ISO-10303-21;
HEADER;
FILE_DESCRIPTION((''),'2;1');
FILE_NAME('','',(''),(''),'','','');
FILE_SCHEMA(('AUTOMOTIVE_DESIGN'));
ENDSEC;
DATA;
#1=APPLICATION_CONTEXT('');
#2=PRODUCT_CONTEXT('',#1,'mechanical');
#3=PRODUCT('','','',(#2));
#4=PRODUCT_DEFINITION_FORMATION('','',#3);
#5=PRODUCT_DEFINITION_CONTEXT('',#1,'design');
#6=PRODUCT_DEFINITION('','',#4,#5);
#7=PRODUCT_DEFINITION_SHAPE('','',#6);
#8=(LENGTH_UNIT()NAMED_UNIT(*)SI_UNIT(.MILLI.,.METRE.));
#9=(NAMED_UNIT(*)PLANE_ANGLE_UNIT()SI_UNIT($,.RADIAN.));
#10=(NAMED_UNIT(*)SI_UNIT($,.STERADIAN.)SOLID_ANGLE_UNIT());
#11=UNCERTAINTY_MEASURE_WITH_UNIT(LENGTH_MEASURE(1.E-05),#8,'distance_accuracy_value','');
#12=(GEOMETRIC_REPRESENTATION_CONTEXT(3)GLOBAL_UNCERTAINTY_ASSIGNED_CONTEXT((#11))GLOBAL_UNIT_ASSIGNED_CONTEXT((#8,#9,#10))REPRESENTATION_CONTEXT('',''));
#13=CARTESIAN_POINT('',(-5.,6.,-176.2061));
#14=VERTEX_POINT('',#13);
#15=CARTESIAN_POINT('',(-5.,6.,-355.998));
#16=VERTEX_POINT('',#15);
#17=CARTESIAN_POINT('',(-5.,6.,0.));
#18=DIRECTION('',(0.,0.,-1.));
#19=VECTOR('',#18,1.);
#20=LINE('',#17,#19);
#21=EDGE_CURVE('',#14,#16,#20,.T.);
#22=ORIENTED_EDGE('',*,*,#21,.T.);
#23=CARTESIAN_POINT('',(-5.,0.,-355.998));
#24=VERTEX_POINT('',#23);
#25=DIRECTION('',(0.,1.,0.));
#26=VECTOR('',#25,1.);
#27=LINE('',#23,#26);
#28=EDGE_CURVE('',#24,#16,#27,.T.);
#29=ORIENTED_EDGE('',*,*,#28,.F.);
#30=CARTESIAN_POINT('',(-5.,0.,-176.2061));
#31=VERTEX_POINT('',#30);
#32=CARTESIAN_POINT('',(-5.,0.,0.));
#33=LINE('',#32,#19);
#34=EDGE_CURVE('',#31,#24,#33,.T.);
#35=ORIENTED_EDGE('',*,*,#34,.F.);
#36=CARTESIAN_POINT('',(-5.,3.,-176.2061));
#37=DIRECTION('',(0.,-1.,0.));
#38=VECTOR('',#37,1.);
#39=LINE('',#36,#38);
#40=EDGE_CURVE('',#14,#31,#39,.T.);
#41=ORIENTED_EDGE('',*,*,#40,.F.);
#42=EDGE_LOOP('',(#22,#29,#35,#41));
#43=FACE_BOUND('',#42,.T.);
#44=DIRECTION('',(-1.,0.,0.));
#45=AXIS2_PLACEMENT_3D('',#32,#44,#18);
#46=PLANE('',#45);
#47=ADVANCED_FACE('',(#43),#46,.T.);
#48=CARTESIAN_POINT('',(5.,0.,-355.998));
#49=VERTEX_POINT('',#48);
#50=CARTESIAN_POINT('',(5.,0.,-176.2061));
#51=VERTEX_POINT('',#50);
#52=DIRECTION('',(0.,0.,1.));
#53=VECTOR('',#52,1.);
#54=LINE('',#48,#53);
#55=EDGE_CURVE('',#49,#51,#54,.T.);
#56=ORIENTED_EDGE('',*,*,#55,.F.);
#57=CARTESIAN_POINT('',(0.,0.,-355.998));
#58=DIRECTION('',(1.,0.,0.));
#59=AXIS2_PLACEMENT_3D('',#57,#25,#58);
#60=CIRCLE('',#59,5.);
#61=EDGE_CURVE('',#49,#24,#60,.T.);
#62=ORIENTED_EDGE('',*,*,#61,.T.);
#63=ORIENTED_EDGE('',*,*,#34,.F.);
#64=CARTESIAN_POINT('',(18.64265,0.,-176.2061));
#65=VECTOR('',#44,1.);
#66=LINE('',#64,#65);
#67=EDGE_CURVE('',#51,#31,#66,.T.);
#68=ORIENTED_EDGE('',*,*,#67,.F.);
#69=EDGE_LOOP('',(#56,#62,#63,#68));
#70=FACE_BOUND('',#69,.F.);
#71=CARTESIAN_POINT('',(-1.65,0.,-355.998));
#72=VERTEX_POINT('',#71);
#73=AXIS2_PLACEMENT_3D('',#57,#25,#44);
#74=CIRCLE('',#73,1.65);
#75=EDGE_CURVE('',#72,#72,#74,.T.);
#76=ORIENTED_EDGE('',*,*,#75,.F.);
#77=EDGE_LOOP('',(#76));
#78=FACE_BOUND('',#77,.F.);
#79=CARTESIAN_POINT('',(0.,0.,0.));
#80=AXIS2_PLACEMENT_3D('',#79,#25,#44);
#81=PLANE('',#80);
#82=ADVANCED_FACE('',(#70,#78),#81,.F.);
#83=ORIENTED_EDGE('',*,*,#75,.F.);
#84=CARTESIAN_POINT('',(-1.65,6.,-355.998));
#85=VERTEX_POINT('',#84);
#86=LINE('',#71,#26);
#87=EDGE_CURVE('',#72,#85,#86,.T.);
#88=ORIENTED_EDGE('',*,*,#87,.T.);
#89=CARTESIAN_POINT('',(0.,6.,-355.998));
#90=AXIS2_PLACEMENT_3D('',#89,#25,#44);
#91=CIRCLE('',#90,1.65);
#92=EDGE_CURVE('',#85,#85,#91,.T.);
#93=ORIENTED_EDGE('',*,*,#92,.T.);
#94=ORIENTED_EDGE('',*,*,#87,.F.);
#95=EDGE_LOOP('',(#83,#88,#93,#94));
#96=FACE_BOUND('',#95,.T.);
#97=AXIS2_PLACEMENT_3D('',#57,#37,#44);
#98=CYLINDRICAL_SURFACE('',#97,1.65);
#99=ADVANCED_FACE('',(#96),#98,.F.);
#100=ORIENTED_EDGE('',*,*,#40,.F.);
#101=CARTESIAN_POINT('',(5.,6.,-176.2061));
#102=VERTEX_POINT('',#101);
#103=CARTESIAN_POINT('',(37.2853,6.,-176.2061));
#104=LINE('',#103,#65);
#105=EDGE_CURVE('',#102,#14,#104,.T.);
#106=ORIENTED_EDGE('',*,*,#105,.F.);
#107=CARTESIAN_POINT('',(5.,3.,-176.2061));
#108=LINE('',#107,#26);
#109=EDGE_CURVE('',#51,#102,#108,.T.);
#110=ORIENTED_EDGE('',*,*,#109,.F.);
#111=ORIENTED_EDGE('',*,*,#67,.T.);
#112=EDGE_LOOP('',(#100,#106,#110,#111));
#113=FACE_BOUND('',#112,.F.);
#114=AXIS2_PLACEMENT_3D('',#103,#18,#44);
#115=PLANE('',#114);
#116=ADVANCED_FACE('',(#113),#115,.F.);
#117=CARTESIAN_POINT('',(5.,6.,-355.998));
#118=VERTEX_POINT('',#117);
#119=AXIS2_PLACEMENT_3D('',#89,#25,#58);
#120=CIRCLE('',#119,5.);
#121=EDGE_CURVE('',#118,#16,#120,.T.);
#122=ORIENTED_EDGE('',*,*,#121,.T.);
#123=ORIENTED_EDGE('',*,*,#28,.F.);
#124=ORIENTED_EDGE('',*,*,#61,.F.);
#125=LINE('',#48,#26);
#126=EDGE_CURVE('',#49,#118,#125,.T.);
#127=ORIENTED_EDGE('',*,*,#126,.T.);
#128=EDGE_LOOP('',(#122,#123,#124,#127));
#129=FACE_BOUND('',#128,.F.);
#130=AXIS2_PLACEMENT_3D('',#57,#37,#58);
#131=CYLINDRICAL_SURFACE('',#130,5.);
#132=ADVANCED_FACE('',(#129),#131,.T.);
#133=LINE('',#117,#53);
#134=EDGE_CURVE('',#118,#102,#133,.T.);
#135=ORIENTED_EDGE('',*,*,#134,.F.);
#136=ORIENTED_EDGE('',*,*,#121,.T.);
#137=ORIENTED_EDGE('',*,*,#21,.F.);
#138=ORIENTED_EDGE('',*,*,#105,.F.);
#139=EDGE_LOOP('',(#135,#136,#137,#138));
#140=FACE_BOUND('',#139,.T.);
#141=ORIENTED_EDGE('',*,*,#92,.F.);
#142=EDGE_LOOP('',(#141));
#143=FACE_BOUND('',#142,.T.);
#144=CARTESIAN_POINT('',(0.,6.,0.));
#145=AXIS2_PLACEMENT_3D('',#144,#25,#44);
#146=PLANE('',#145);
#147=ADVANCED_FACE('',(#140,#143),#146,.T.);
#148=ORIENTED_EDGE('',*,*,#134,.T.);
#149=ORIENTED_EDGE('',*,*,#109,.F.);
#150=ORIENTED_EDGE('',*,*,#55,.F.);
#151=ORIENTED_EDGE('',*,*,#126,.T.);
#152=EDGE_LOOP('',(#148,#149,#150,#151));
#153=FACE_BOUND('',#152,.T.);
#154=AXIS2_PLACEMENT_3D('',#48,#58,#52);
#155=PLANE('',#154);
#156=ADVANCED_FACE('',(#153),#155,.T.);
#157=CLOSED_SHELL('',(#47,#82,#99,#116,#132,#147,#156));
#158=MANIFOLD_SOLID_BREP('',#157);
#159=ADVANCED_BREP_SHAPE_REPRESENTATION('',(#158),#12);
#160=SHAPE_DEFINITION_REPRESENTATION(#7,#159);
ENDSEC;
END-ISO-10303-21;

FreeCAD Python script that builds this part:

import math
import FreeCAD as App
import Part
import Sketcher
from FreeCAD import Vector
Q = App.Units.Quantity

doc = App.newDocument("Part")
params = doc.addObject("Spreadsheet::Sheet", "Params")
for row, (alias, value) in enumerate([
    ("sketch1_radius", "5 mm"),
    ("sketch1_diameter", "3.3 mm"),
    ("pad1_length", "6 mm"),
    ("pocket1_length", "10 mm"),
], start=1):
    params.set(f"A{row}", alias)
    params.set(f"B{row}", "=" + value)
    params.setAlias(f"B{row}", alias)

body = doc.addObject("PartDesign::Body", "Body")

# Sketch on XZ plane
sketch1 = doc.addObject("Sketcher::SketchObject", "Sketch")
body.addObject(sketch1)
sketch1.AttachmentSupport = (doc.XZ_Plane, [""])
sketch1.MapMode = "FlatFace"
sketch1.addGeometry(Part.LineSegment(Vector(-5, -356, 0), Vector(-5, 0, 0)), False)
sketch1.addGeometry(Part.ArcOfCircle(Part.Circle(Vector(0, 0, 0), Vector(0, 0, 1), 5), math.radians(0), math.radians(180)), False)
sketch1.addGeometry(Part.LineSegment(Vector(5, 0, 0), Vector(5, -356, 0)), False)
sketch1.addGeometry(Part.ArcOfCircle(Part.Circle(Vector(0, -356, 0), Vector(0, 0, 1), 5), math.radians(180), math.radians(360)), False)
sketch1.addGeometry(Part.Circle(Vector(0, -356, 0), Vector(0, 0, 1), 1.6), False)
sketch1.addGeometry(Part.Circle(Vector(0, -57.4, 0), Vector(0, 0, 1), 1.6), False)
sketch1.addGeometry(Part.Circle(Vector(0, 0, 0), Vector(0, 0, 1), 1.6), False)
sketch1.addConstraint(Sketcher.Constraint("Tangent", 0, 2, 1, 2))
sketch1.addConstraint(Sketcher.Constraint("Tangent", 1, 1, 2, 1))
sketch1.addConstraint(Sketcher.Constraint("Tangent", 2, 2, 3, 2))
sketch1.addConstraint(Sketcher.Constraint("Tangent", 3, 1, 0, 1))
sketch1.addConstraint(Sketcher.Constraint("Vertical", 0))
sketch1.addConstraint(Sketcher.Constraint("Vertical", 2))
sketch1.addConstraint(Sketcher.Constraint("Coincident", 1, 3, -1, 1))
sketch1.addConstraint(Sketcher.Constraint("Coincident", 6, 3, -1, 1))
sketch1.addConstraint(Sketcher.Constraint("Coincident", 4, 3, 3, 3))
sketch1.addConstraint(Sketcher.Constraint("Equal", 4, 5))
sketch1.addConstraint(Sketcher.Constraint("Equal", 5, 6))
sketch1.addConstraint(Sketcher.Constraint("PointOnObject", 5, 3, -2))
sketch1.addConstraint(Sketcher.Constraint("Radius", 1, Q("5 mm")))
sketch1.addConstraint(Sketcher.Constraint("Diameter", 4, Q("3.3 mm")))
sketch1.addConstraint(Sketcher.Constraint("DistanceY", 0, 1, 0, 2, Q("355.998 mm")))
sketch1.addConstraint(Sketcher.Constraint("DistanceY", 5, 3, -1, 1, Q("57.376 mm")))
sketch1.setExpression("Constraints[12]", "Params.sketch1_radius")
sketch1.setExpression("Constraints[13]", "Params.sketch1_diameter")
pad1 = doc.addObject("PartDesign::Pad", "Pad")
body.addObject(pad1)
pad1.Profile = sketch1
pad1.setExpression("Length", "Params.pad1_length")
pad1.Reversed = True

# Sketch on XZ plane
sketch2 = doc.addObject("Sketcher::SketchObject", "Sketch001")
body.addObject(sketch2)
sketch2.AttachmentSupport = (doc.XZ_Plane, [""])
sketch2.MapMode = "FlatFace"
sketch2.AttachmentOffset = App.Placement(Vector(0, 0, -6), App.Rotation())
sketch2.addGeometry(Part.LineSegment(Vector(75, -405, 0), Vector(-95, -405, 0)), False)
sketch2.addGeometry(Part.LineSegment(Vector(-95, -405, 0), Vector(-95, 44, 0)), False)
sketch2.addGeometry(Part.LineSegment(Vector(-95, 44, 0), Vector(75, 44, 0)), False)
sketch2.addGeometry(Part.LineSegment(Vector(75, 44, 0), Vector(75, -405, 0)), False)
sketch2.addGeometry(Part.LineSegment(Vector(-26, -176, 0), Vector(-26, -379, 0)), False)
sketch2.addGeometry(Part.LineSegment(Vector(-26, -379, 0), Vector(37, -379, 0)), False)
sketch2.addGeometry(Part.LineSegment(Vector(37, -379, 0), Vector(37, -176, 0)), False)
sketch2.addGeometry(Part.LineSegment(Vector(37, -176, 0), Vector(-26, -176, 0)), False)
sketch2.addConstraint(Sketcher.Constraint("Coincident", 0, 2, 1, 1))
sketch2.addConstraint(Sketcher.Constraint("Coincident", 1, 2, 2, 1))
sketch2.addConstraint(Sketcher.Constraint("Coincident", 2, 2, 3, 1))
sketch2.addConstraint(Sketcher.Constraint("Coincident", 3, 2, 0, 1))
sketch2.addConstraint(Sketcher.Constraint("Coincident", 4, 2, 5, 1))
sketch2.addConstraint(Sketcher.Constraint("Coincident", 5, 2, 6, 1))
sketch2.addConstraint(Sketcher.Constraint("Coincident", 6, 2, 7, 1))
sketch2.addConstraint(Sketcher.Constraint("Coincident", 7, 2, 4, 1))
sketch2.addConstraint(Sketcher.Constraint("Horizontal", 0))
sketch2.addConstraint(Sketcher.Constraint("Vertical", 1))
sketch2.addConstraint(Sketcher.Constraint("Horizontal", 2))
sketch2.addConstraint(Sketcher.Constraint("Vertical", 3))
sketch2.addConstraint(Sketcher.Constraint("Vertical", 4))
sketch2.addConstraint(Sketcher.Constraint("Horizontal", 5))
sketch2.addConstraint(Sketcher.Constraint("Vertical", 6))
sketch2.addConstraint(Sketcher.Constraint("Horizontal", 7))
sketch2.addConstraint(Sketcher.Constraint("DistanceX", 0, 2, 0, 1, Q("170.1706 mm")))
sketch2.addConstraint(Sketcher.Constraint("DistanceX", 5, 1, 5, 2, Q("63.5038 mm")))
sketch2.addConstraint(Sketcher.Constraint("DistanceY", 1, 1, 1, 2, Q("449.4885 mm")))
sketch2.addConstraint(Sketcher.Constraint("DistanceY", 4, 2, 4, 1, Q("202.4187 mm")))
sketch2.addConstraint(Sketcher.Constraint("DistanceY", -1, 1, 1, 2, Q("44.073 mm")))
sketch2.addConstraint(Sketcher.Constraint("DistanceY", 6, 2, -1, 1, Q("176.206 mm")))
sketch2.addConstraint(Sketcher.Constraint("DistanceX", 0, 2, 5, 2, Q("132.465 mm")))
sketch2.addConstraint(Sketcher.Constraint("DistanceX", 0, 2, -1, 1, Q("95.1798 mm")))
pocket1 = doc.addObject("PartDesign::Pocket", "Pocket")
body.addObject(pocket1)
pocket1.Profile = sketch2
pocket1.setExpression("Length", "Params.pocket1_length")
pocket1.Reversed = True

doc.recompute()
